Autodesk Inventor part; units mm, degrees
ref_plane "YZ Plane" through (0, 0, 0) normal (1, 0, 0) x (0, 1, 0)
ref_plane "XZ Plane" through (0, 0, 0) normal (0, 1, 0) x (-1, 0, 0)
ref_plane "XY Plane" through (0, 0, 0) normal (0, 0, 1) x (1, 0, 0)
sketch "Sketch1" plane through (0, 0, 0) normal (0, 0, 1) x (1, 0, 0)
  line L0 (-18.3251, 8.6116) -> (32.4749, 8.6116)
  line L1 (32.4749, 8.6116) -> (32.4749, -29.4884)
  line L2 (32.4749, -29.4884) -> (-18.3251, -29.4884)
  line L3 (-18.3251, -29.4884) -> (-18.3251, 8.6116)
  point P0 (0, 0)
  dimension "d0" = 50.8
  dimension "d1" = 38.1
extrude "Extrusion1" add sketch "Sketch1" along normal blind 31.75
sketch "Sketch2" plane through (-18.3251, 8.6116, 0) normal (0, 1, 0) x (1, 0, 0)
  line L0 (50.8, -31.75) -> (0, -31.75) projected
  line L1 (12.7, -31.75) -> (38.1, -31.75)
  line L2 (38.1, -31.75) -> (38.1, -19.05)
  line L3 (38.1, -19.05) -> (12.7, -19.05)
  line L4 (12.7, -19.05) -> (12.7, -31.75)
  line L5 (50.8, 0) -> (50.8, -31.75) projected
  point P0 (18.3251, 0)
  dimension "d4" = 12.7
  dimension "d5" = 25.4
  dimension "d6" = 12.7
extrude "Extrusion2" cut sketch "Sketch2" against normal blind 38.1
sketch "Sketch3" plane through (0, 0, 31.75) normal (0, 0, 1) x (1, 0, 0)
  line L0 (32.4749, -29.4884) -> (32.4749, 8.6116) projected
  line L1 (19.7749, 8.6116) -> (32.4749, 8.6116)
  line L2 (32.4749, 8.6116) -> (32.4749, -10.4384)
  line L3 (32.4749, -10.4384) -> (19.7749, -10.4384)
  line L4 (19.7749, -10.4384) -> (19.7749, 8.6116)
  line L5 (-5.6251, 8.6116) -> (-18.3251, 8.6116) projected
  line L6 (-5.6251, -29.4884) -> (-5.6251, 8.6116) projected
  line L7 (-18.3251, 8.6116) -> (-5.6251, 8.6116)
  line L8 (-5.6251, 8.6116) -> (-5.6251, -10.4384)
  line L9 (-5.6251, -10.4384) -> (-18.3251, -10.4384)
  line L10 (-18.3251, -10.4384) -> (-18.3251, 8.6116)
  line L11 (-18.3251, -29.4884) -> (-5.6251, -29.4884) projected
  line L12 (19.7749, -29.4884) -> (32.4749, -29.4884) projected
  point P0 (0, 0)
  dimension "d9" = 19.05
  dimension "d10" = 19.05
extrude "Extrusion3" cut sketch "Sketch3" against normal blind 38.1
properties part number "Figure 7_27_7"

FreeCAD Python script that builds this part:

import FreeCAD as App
import Part
import Sketcher
Q = App.Units.Quantity

doc = App.newDocument("Part")
body = doc.addObject("PartDesign::Body", "Body")

# Sketch on XY plane
sketch1 = doc.addObject("Sketcher::SketchObject", "Sketch")
body.addObject(sketch1)
sketch1.AttachmentSupport = (doc.XY_Plane, [""])
sketch1.MapMode = "FlatFace"
sketch1.addGeometry([
    Part.LineSegment(App.Vector(32, 9, 0), App.Vector(-18, 9, 0)),
    Part.LineSegment(App.Vector(-18, 9, 0), App.Vector(-18, -29, 0)),
    Part.LineSegment(App.Vector(-18, -29, 0), App.Vector(32, -29, 0)),
    Part.LineSegment(App.Vector(32, -29, 0), App.Vector(32, 9, 0)),
], False)
sketch1.addConstraint([
    Sketcher.Constraint("Coincident", 0, 2, 1, 1),
    Sketcher.Constraint("Coincident", 1, 2, 2, 1),
    Sketcher.Constraint("Coincident", 2, 2, 3, 1),
    Sketcher.Constraint("Coincident", 3, 2, 0, 1),
    Sketcher.Constraint("Horizontal", 0),
    Sketcher.Constraint("Vertical", 1),
    Sketcher.Constraint("Horizontal", 2),
    Sketcher.Constraint("Vertical", 3),
    Sketcher.Constraint("DistanceX", 0, 2, 0, 1, Q("2 in")),
    Sketcher.Constraint("DistanceY", 1, 2, 1, 1, Q("1.5 in")),
    Sketcher.Constraint("DistanceX", 0, 2, -1, 1, 18.325),
    Sketcher.Constraint("DistanceY", -1, 1, 0, 2, 8.6116),
])
pad1 = doc.addObject("PartDesign::Pad", "Pad")
body.addObject(pad1)
pad1.Profile = sketch1
pad1.Length = Q("1.25 in")

# Sketch on XZ plane
sketch2 = doc.addObject("Sketcher::SketchObject", "Sketch001")
body.addObject(sketch2)
sketch2.AttachmentSupport = (doc.XZ_Plane, [""])
sketch2.MapMode = "FlatFace"
sketch2.AttachmentOffset = App.Placement(App.Vector(0, 0, -8.6116), App.Rotation())
sketch2.addGeometry([
    Part.LineSegment(App.Vector(-6, 32, 0), App.Vector(20, 32, 0)),
    Part.LineSegment(App.Vector(20, 32, 0), App.Vector(20, 19, 0)),
    Part.LineSegment(App.Vector(20, 19, 0), App.Vector(-6, 19, 0)),
    Part.LineSegment(App.Vector(-6, 19, 0), App.Vector(-6, 32, 0)),
], False)
sketch2.addConstraint([
    Sketcher.Constraint("Coincident", 0, 2, 1, 1),
    Sketcher.Constraint("Coincident", 1, 2, 2, 1),
    Sketcher.Constraint("Coincident", 2, 2, 3, 1),
    Sketcher.Constraint("Coincident", 3, 2, 0, 1),
    Sketcher.Constraint("Horizontal", 0),
    Sketcher.Constraint("Vertical", 1),
    Sketcher.Constraint("Horizontal", 2),
    Sketcher.Constraint("Vertical", 3),
    Sketcher.Constraint("DistanceX", 0, 1, 0, 2, Q("1 in")),
    Sketcher.Constraint("DistanceY", 1, 2, 1, 1, Q("0.5 in")),
    Sketcher.Constraint("DistanceY", -1, 1, 0, 2, Q("1.25 in")),
    Sketcher.Constraint("DistanceX", -1, 1, 0, 2, 19.775),
])
pocket1 = doc.addObject("PartDesign::Pocket", "Pocket")
body.addObject(pocket1)
pocket1.Profile = sketch2
pocket1.Length = Q("1.5 in")
pocket1.Reversed = True

# Sketch on XY plane
sketch3 = doc.addObject("Sketcher::SketchObject", "Sketch002")
body.addObject(sketch3)
sketch3.AttachmentSupport = (doc.XY_Plane, [""])
sketch3.MapMode = "FlatFace"
sketch3.AttachmentOffset = App.Placement(App.Vector(0, 0, 1.25 * 25.4), App.Rotation())
sketch3.addGeometry([
    Part.LineSegment(App.Vector(20, -10, 0), App.Vector(32, -10, 0)),  # 0
    Part.LineSegment(App.Vector(32, -10, 0), App.Vector(32, 9, 0)),  # 1
    Part.LineSegment(App.Vector(32, 9, 0), App.Vector(20, 9, 0)),  # 2
    Part.LineSegment(App.Vector(20, 9, 0), App.Vector(20, -10, 0)),  # 3
    Part.LineSegment(App.Vector(-6, -10, 0), App.Vector(-6, 9, 0)),  # 4
    Part.LineSegment(App.Vector(-6, 9, 0), App.Vector(-18, 9, 0)),  # 5
    Part.LineSegment(App.Vector(-18, 9, 0), App.Vector(-18, -10, 0)),  # 6
    Part.LineSegment(App.Vector(-18, -10, 0), App.Vector(-6, -10, 0)),  # 7
], False)
sketch3.addConstraint([
    Sketcher.Constraint("Coincident", 0, 2, 1, 1),
    Sketcher.Constraint("Coincident", 1, 2, 2, 1),
    Sketcher.Constraint("Coincident", 2, 2, 3, 1),
    Sketcher.Constraint("Coincident", 3, 2, 0, 1),
    Sketcher.Constraint("Coincident", 4, 2, 5, 1),
    Sketcher.Constraint("Coincident", 5, 2, 6, 1),
    Sketcher.Constraint("Coincident", 6, 2, 7, 1),
    Sketcher.Constraint("Coincident", 7, 2, 4, 1),
    Sketcher.Constraint("Horizontal", 0),
    Sketcher.Constraint("Vertical", 1),
    Sketcher.Constraint("Horizontal", 2),
    Sketcher.Constraint("Vertical", 3),
    Sketcher.Constraint("Vertical", 4),
    Sketcher.Constraint("Horizontal", 5),
    Sketcher.Constraint("Vertical", 6),
    Sketcher.Constraint("Horizontal", 7),
    Sketcher.Constraint("Horizontal", 2, 2, 4, 2),
    Sketcher.Constraint("Horizontal", 3, 2, 6, 2),
    Sketcher.Constraint("Equal", 2, 5),
    Sketcher.Constraint("DistanceY", 1, 1, 1, 2, Q("0.75 in")),
    Sketcher.Constraint("DistanceX", 0, 1, 0, 2, Q("0.5 in")),
    Sketcher.Constraint("DistanceX", 4, 2, 2, 2, Q("1 in")),
    Sketcher.Constraint("DistanceX", -1, 1, 0, 2, 32.475),
    Sketcher.Constraint("DistanceY", 0, 2, -1, 1, 10.4384),
])
pocket2 = doc.addObject("PartDesign::Pocket", "Pocket001")
body.addObject(pocket2)
pocket2.Profile = sketch3
pocket2.Length = Q("1.5 in")

doc.recompute()
